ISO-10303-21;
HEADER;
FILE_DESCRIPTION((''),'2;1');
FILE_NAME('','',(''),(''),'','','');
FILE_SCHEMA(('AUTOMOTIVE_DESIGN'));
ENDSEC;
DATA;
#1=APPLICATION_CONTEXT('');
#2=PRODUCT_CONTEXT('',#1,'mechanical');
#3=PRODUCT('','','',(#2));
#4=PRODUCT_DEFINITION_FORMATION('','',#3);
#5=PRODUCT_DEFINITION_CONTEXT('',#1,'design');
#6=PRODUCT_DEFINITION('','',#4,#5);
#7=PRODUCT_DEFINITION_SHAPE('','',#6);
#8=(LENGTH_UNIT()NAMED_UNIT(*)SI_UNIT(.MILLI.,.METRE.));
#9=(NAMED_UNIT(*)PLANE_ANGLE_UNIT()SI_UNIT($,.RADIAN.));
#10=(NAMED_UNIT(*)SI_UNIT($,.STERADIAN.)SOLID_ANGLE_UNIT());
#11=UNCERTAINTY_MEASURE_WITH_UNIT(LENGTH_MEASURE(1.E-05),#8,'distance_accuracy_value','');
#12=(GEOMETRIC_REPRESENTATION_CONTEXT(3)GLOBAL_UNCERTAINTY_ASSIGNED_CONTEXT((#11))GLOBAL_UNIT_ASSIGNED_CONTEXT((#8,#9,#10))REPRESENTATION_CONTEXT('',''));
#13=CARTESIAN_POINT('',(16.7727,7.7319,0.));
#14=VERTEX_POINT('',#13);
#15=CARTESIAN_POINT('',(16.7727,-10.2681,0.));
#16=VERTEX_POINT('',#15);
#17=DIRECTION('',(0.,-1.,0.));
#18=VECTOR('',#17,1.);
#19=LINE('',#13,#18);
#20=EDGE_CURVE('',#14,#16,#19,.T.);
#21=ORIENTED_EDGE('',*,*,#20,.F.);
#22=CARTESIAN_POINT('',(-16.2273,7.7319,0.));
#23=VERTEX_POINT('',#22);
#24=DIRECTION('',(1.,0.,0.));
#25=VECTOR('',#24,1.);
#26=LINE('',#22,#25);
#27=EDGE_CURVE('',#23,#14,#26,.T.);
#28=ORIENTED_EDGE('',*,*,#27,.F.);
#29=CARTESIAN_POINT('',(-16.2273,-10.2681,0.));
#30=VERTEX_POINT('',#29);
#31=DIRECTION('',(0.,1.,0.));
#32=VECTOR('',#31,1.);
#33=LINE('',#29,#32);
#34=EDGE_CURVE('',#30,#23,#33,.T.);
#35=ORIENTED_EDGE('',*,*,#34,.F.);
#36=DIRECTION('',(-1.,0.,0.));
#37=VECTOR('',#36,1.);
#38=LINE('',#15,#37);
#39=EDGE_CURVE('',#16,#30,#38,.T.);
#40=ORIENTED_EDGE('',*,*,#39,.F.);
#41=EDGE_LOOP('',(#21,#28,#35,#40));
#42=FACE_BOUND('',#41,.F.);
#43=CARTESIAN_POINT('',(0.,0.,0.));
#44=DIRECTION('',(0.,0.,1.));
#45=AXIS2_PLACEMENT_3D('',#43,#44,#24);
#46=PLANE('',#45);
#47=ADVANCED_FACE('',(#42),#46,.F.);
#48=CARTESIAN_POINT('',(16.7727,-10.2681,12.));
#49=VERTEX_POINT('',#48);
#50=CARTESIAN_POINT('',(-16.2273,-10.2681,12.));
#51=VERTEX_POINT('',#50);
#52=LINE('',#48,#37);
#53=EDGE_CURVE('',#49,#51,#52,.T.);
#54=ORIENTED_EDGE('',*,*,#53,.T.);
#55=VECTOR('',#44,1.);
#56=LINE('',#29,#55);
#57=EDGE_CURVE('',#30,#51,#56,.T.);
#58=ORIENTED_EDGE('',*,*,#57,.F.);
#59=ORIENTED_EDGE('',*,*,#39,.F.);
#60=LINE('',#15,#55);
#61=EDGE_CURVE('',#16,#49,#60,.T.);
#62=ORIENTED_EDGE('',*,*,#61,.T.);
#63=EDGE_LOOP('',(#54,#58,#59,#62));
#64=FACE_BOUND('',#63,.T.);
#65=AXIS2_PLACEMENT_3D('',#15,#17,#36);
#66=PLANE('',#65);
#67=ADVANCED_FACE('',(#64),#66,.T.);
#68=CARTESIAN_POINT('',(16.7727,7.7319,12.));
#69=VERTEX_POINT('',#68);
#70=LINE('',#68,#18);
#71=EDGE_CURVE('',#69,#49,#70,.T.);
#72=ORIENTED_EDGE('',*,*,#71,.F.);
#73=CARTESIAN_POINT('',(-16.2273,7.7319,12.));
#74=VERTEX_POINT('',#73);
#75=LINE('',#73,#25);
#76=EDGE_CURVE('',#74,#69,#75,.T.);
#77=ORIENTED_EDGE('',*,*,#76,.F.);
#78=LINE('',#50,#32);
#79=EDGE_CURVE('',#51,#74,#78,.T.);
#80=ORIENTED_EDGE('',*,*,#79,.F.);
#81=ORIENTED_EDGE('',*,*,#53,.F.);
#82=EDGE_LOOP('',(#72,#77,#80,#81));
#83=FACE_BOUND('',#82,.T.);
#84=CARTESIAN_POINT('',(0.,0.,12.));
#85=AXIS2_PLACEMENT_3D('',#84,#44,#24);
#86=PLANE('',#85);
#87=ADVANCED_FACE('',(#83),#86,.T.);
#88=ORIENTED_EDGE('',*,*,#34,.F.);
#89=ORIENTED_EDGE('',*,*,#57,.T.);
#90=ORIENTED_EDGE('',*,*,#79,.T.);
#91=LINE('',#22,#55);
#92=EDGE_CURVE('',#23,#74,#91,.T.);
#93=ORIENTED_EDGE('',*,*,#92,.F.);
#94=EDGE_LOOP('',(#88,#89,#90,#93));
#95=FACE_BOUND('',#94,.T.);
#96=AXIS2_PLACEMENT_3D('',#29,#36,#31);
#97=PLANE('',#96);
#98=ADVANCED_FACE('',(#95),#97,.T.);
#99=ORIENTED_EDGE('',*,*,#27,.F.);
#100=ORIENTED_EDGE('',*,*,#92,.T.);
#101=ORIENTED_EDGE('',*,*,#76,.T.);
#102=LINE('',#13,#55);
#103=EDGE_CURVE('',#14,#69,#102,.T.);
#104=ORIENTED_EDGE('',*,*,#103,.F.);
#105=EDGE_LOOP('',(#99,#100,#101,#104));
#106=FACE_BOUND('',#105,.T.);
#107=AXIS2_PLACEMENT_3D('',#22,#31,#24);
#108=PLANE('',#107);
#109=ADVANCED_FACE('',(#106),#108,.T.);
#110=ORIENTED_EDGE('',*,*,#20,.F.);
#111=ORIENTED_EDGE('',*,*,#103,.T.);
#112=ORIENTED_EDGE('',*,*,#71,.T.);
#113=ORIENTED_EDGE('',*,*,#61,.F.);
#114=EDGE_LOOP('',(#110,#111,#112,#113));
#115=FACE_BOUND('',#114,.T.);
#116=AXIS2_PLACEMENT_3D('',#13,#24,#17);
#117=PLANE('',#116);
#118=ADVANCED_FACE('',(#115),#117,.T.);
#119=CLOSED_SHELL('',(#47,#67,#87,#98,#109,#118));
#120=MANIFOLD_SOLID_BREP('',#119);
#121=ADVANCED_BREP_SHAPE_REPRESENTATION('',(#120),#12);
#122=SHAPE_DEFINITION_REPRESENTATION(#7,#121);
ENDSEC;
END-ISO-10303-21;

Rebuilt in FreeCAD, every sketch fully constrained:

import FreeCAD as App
import Part
import Sketcher
from FreeCAD import Vector
Q = App.Units.Quantity

doc = App.newDocument("Part")
body = doc.addObject("PartDesign::Body", "Body")

# Sketch on XY plane
sketch1 = body.newObject("Sketcher::SketchObject", "Sketch")
sketch1.AttachmentSupport = (doc.getObject("XY_Plane"), [""])
sketch1.MapMode = "FlatFace"
sketch1.addGeometry(Part.LineSegment(Vector(17, 8, 0), Vector(-16, 8, 0)), False)
sketch1.addGeometry(Part.LineSegment(Vector(-16, 8, 0), Vector(-16, -10, 0)), False)
sketch1.addGeometry(Part.LineSegment(Vector(-16, -10, 0), Vector(17, -10, 0)), False)
sketch1.addGeometry(Part.LineSegment(Vector(17, -10, 0), Vector(17, 8, 0)), False)
sketch1.addConstraint(Sketcher.Constraint("Coincident", 0, 2, 1, 1))
sketch1.addConstraint(Sketcher.Constraint("Coincident", 1, 2, 2, 1))
sketch1.addConstraint(Sketcher.Constraint("Coincident", 2, 2, 3, 1))
sketch1.addConstraint(Sketcher.Constraint("Coincident", 3, 2, 0, 1))
sketch1.addConstraint(Sketcher.Constraint("Horizontal", 0))
sketch1.addConstraint(Sketcher.Constraint("Vertical", 1))
sketch1.addConstraint(Sketcher.Constraint("Horizontal", 2))
sketch1.addConstraint(Sketcher.Constraint("Vertical", 3))
sketch1.addConstraint(Sketcher.Constraint("DistanceX", 0, 2, 0, 1, Q("33 mm")))
sketch1.addConstraint(Sketcher.Constraint("DistanceY", 1, 2, 1, 1, Q("18 mm")))
sketch1.addConstraint(Sketcher.Constraint("DistanceY", -1, 1, 0, 2, Q("7.732 mm")))
sketch1.addConstraint(Sketcher.Constraint("DistanceX", 0, 2, -1, 1, Q("16.2273 mm")))
pad1 = body.newObject("PartDesign::Pad", "Pad")
pad1.Profile = sketch1
pad1.Length = 12

doc.recompute()
